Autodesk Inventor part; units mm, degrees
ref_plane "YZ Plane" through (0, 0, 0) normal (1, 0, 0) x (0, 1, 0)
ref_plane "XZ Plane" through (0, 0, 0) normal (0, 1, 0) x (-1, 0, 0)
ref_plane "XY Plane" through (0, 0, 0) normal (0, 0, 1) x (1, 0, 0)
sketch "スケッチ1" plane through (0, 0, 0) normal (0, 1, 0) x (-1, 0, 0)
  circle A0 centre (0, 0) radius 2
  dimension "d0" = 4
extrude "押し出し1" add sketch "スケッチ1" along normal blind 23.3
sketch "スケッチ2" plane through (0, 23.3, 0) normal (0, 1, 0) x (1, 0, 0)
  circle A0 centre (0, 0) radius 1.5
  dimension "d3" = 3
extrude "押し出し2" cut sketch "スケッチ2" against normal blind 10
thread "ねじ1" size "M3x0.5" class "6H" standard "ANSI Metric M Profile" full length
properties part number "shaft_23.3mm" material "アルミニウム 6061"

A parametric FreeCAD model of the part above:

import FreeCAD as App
import Part
import Sketcher
Q = App.Units.Quantity

doc = App.newDocument("Part")
params = doc.addObject("Spreadsheet::Sheet", "Params")
for row, (alias, value) in enumerate([
    ("sketch1_diameter", "4 mm"),
    ("pad1_length", "23.3 mm"),
    ("sketch2_diameter", "3 mm"),
    ("pocket1_length", "10 mm"),
], start=1):
    params.set(f"A{row}", alias)
    params.set(f"B{row}", "=" + value)
    params.setAlias(f"B{row}", alias)

body = doc.addObject("PartDesign::Body", "Body")

# Sketch on XZ plane
sketch1 = body.newObject("Sketcher::SketchObject", "Sketch")
sketch1.AttachmentSupport = (doc.getObject("XZ_Plane"), [""])
sketch1.MapMode = "FlatFace"
sketch1.addGeometry(Part.Circle(App.Vector(0, 0, 0), App.Vector(0, 0, 1), 2), False)
sketch1.addConstraint([
    Sketcher.Constraint("Coincident", 0, 3, -1, 1),
    Sketcher.Constraint("Diameter", 0, Q("4 mm")),
])
sketch1.setExpression("Constraints[1]", "Params.sketch1_diameter")
pad1 = body.newObject("PartDesign::Pad", "Pad")
pad1.Profile = sketch1
pad1.setExpression("Length", "Params.pad1_length")
pad1.Reversed = True

# Sketch on XZ plane
sketch2 = body.newObject("Sketcher::SketchObject", "Sketch001")
sketch2.AttachmentSupport = (doc.getObject("XZ_Plane"), [""])
sketch2.MapMode = "FlatFace"
sketch2.AttachmentOffset = App.Placement(App.Vector(0, 0, -23.3), App.Rotation())
sketch2.addGeometry(Part.Circle(App.Vector(0, 0, 0), App.Vector(0, 0, 1), 1.5), False)
sketch2.addConstraint([
    Sketcher.Constraint("Coincident", 0, 3, -1, 1),
    Sketcher.Constraint("Diameter", 0, Q("3 mm")),
])
sketch2.setExpression("Constraints[1]", "Params.sketch2_diameter")
pocket1 = body.newObject("PartDesign::Pocket", "Pocket")
pocket1.Profile = sketch2
pocket1.setExpression("Length", "Params.pocket1_length")
pocket1.Reversed = True

doc.recompute()
